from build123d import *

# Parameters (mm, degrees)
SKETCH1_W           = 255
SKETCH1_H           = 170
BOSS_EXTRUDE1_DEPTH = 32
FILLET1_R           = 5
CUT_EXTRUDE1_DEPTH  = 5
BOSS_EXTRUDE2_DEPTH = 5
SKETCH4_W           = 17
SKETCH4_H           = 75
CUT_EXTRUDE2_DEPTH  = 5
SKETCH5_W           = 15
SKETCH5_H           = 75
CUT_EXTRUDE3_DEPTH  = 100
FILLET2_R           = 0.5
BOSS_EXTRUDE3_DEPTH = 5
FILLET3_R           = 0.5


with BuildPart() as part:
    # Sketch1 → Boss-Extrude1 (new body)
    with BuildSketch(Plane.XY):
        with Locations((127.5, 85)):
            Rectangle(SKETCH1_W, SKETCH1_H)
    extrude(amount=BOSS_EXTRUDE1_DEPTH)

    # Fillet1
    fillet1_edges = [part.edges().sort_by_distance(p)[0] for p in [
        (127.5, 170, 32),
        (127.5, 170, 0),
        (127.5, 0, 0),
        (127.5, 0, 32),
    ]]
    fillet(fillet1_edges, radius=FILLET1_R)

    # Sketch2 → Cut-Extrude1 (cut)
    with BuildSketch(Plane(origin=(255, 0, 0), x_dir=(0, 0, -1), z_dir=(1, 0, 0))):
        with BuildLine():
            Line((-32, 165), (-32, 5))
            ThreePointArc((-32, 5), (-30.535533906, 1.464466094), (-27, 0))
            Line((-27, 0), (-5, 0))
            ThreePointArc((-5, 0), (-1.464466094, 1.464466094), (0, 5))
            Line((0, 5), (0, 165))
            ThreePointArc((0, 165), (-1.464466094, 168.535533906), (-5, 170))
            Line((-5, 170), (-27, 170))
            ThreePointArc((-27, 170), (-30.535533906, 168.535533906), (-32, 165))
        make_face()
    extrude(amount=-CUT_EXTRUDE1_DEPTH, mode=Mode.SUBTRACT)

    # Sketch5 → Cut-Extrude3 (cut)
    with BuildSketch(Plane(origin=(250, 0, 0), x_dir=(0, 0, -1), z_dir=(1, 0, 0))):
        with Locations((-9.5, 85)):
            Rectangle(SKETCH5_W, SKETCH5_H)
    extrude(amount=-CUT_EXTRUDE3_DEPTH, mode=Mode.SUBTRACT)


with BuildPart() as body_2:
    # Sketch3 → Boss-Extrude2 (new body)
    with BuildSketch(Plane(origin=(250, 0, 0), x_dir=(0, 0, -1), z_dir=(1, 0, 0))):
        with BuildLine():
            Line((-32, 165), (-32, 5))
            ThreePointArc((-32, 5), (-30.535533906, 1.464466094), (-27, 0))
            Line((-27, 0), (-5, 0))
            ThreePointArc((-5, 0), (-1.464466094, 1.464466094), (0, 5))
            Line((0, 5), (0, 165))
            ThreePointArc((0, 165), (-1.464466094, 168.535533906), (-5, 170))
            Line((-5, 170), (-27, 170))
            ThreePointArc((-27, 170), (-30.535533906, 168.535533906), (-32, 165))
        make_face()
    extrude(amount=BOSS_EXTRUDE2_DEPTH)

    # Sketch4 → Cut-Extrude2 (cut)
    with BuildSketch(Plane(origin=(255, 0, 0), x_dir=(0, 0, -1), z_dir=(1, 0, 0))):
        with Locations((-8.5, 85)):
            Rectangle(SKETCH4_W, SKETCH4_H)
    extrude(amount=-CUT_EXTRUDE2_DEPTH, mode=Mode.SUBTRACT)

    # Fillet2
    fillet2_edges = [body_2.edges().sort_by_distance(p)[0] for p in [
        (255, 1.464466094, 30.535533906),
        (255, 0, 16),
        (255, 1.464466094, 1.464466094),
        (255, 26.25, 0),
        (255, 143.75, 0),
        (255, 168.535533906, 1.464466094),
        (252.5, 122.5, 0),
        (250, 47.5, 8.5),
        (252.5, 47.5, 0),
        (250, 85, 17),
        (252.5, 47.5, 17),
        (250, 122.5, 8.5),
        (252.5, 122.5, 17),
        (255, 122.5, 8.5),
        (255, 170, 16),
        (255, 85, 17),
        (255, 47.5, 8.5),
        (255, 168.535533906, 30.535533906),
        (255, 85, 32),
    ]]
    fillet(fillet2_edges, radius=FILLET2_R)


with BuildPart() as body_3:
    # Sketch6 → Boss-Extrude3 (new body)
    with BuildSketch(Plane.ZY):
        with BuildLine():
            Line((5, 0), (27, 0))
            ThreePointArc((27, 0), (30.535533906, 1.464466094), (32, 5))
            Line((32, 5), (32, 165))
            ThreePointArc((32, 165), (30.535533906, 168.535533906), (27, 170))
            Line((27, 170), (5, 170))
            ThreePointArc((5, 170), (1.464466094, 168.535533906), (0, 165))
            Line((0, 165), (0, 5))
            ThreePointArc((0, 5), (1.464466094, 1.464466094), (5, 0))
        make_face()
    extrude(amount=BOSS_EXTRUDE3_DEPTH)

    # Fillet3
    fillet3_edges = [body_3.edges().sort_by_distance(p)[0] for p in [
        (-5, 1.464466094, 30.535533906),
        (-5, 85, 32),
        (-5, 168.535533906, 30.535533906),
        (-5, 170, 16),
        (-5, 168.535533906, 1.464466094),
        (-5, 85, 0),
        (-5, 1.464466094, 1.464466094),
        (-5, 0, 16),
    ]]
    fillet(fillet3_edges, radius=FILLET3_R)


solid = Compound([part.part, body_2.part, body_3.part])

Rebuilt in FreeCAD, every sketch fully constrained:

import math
import FreeCAD as App
import Part
import Sketcher
from FreeCAD import Vector
Q = App.Units.Quantity


def edges_at(feature, points):
    """Names of the edges that pass closest to the given points."""
    edges = feature.Shape.Edges
    near = lambda p: min(range(len(edges)), key=lambda i: edges[i].distToShape(Part.Vertex(*p))[0])
    return sorted({f"Edge{near(p) + 1}" for p in points})


def add_polygon(sketch, points):
    """Adds a closed chain of lines whose ends are joined by coincident constraints."""
    first, n = sketch.GeometryCount, len(points)
    for a, b in zip(points, points[1:] + points[:1]):
        sketch.addGeometry(Part.LineSegment(App.Vector(*a, 0), App.Vector(*b, 0)), False)
    for i in range(n):
        sketch.addConstraint(Sketcher.Constraint("Coincident", first + i, 2, first + (i + 1) % n, 1))

doc = App.newDocument("Part")
body = doc.addObject("PartDesign::Body", "Body")

# Sketch on XY plane
sketch1 = doc.addObject("Sketcher::SketchObject", "Sketch")
body.addObject(sketch1)
sketch1.AttachmentSupport = (doc.XY_Plane, [""])
sketch1.MapMode = "FlatFace"
add_polygon(sketch1, [(0, 170), (0, 0), (255, 0), (255, 170)])  # lines 0-3
sketch1.addConstraint([
    Sketcher.Constraint("Vertical", 0),
    Sketcher.Constraint("Horizontal", 1),
    Sketcher.Constraint("Vertical", 2),
    Sketcher.Constraint("Horizontal", 3),
    Sketcher.Constraint("Coincident", 0, 2, -1, 1),
    Sketcher.Constraint("DistanceX", 1, 1, 1, 2, Q("255 mm")),
    Sketcher.Constraint("DistanceY", 0, 2, 0, 1, Q("170 mm")),
])
pad1 = doc.addObject("PartDesign::Pad", "Pad")
body.addObject(pad1)
pad1.Profile = sketch1
pad1.Length = 32
doc.recompute()

fillet = doc.addObject("PartDesign::Fillet", "Fillet")
body.addObject(fillet)
fillet.Base = (pad1, edges_at(pad1, [
    (127.5, 170, 32),
    (127.5, 170, 0),
    (127.5, 0, 0),
    (127.5, 0, 32),
]))
fillet.Radius = 5

# Sketch on YZ plane
sketch2 = doc.addObject("Sketcher::SketchObject", "Sketch001")
body.addObject(sketch2)
sketch2.AttachmentSupport = (doc.YZ_Plane, [""])
sketch2.MapMode = "FlatFace"
sketch2.AttachmentOffset = App.Placement(Vector(0, 0, 255), App.Rotation())
sketch2.addGeometry([
    Part.LineSegment(Vector(165, 32, 0), Vector(5, 32, 0)),  # 0
    Part.ArcOfCircle(Part.Circle(Vector(5, 27, 0), Vector(0, 0, 1), 5), math.radians(90), math.radians(180)),  # 1
    Part.LineSegment(Vector(0, 27, 0), Vector(0, 5, 0)),  # 2
    Part.ArcOfCircle(Part.Circle(Vector(5, 5, 0), Vector(0, 0, 1), 5), math.radians(180), math.radians(270)),  # 3
    Part.LineSegment(Vector(5, 0, 0), Vector(165, 0, 0)),  # 4
    Part.ArcOfCircle(Part.Circle(Vector(165, 5, 0), Vector(0, 0, 1), 5), math.radians(-90), math.radians(0)),  # 5
    Part.LineSegment(Vector(170, 5, 0), Vector(170, 27, 0)),  # 6
    Part.ArcOfCircle(Part.Circle(Vector(165, 27, 0), Vector(0, 0, 1), 5), math.radians(0), math.radians(90)),  # 7
], False)
sketch2.addConstraint([
    Sketcher.Constraint("Tangent", 0, 2, 1, 1),
    Sketcher.Constraint("Tangent", 1, 2, 2, 1),
    Sketcher.Constraint("Tangent", 2, 2, 3, 1),
    Sketcher.Constraint("Tangent", 3, 2, 4, 1),
    Sketcher.Constraint("Tangent", 4, 2, 5, 1),
    Sketcher.Constraint("Tangent", 5, 2, 6, 1),
    Sketcher.Constraint("Tangent", 6, 2, 7, 1),
    Sketcher.Constraint("Tangent", 7, 2, 0, 1),
    Sketcher.Constraint("Horizontal", 0),
    Sketcher.Constraint("Vertical", 2),
    Sketcher.Constraint("Horizontal", 4),
    Sketcher.Constraint("Vertical", 6),
    Sketcher.Constraint("Equal", 1, 3),
    Sketcher.Constraint("Equal", 3, 5),
    Sketcher.Constraint("Equal", 5, 7),
    Sketcher.Constraint("PointOnObject", 1, 2, -2),
    Sketcher.Constraint("PointOnObject", 3, 2, -1),
    Sketcher.Constraint("Radius", 1, Q("5 mm")),
    Sketcher.Constraint("DistanceX", 0, 2, 0, 1, Q("160 mm")),
    Sketcher.Constraint("DistanceY", 2, 2, 2, 1, Q("22 mm")),
])
pocket1 = doc.addObject("PartDesign::Pocket", "Pocket")
body.addObject(pocket1)
pocket1.Profile = sketch2
pocket1.Length = 5

# Sketch on YZ plane
sketch3 = doc.addObject("Sketcher::SketchObject", "Sketch002")
body.addObject(sketch3)
sketch3.AttachmentSupport = (doc.YZ_Plane, [""])
sketch3.MapMode = "FlatFace"
sketch3.AttachmentOffset = App.Placement(Vector(0, 0, 250), App.Rotation())
add_polygon(sketch3, [(122, 17), (48, 17), (48, 2), (122, 2)])  # lines 0-3
sketch3.addConstraint([
    Sketcher.Constraint("Horizontal", 0),
    Sketcher.Constraint("Vertical", 1),
    Sketcher.Constraint("Horizontal", 2),
    Sketcher.Constraint("Vertical", 3),
    Sketcher.Constraint("DistanceX", 0, 2, 0, 1, Q("75 mm")),
    Sketcher.Constraint("DistanceY", 1, 2, 1, 1, Q("15 mm")),
    Sketcher.Constraint("DistanceY", -1, 1, 0, 2, Q("17 mm")),
    Sketcher.Constraint("DistanceX", -1, 1, 0, 2, Q("47.5 mm")),
])
pocket2 = doc.addObject("PartDesign::Pocket", "Pocket001")
body.addObject(pocket2)
pocket2.Profile = sketch3
pocket2.Length = 100
body2 = doc.addObject("PartDesign::Body", "Body001")

# Sketch on YZ plane
sketch4 = doc.addObject("Sketcher::SketchObject", "Sketch003")
body2.addObject(sketch4)
sketch4.AttachmentSupport = (doc.getObject("YZ_Plane001"), [""])
sketch4.MapMode = "FlatFace"
sketch4.AttachmentOffset = App.Placement(Vector(0, 0, 250), App.Rotation())
sketch4.addGeometry([
    Part.LineSegment(Vector(165, 32, 0), Vector(5, 32, 0)),  # 0
    Part.ArcOfCircle(Part.Circle(Vector(5, 27, 0), Vector(0, 0, 1), 5), math.radians(90), math.radians(180)),  # 1
    Part.LineSegment(Vector(0, 27, 0), Vector(0, 5, 0)),  # 2
    Part.ArcOfCircle(Part.Circle(Vector(5, 5, 0), Vector(0, 0, 1), 5), math.radians(180), math.radians(270)),  # 3
    Part.LineSegment(Vector(5, 0, 0), Vector(165, 0, 0)),  # 4
    Part.ArcOfCircle(Part.Circle(Vector(165, 5, 0), Vector(0, 0, 1), 5), math.radians(-90), math.radians(0)),  # 5
    Part.LineSegment(Vector(170, 5, 0), Vector(170, 27, 0)),  # 6
    Part.ArcOfCircle(Part.Circle(Vector(165, 27, 0), Vector(0, 0, 1), 5), math.radians(0), math.radians(90)),  # 7
], False)
sketch4.addConstraint([
    Sketcher.Constraint("Tangent", 0, 2, 1, 1),
    Sketcher.Constraint("Tangent", 1, 2, 2, 1),
    Sketcher.Constraint("Tangent", 2, 2, 3, 1),
    Sketcher.Constraint("Tangent", 3, 2, 4, 1),
    Sketcher.Constraint("Tangent", 4, 2, 5, 1),
    Sketcher.Constraint("Tangent", 5, 2, 6, 1),
    Sketcher.Constraint("Tangent", 6, 2, 7, 1),
    Sketcher.Constraint("Tangent", 7, 2, 0, 1),
    Sketcher.Constraint("Horizontal", 0),
    Sketcher.Constraint("Vertical", 2),
    Sketcher.Constraint("Horizontal", 4),
    Sketcher.Constraint("Vertical", 6),
    Sketcher.Constraint("Equal", 1, 3),
    Sketcher.Constraint("Equal", 3, 5),
    Sketcher.Constraint("Equal", 5, 7),
    Sketcher.Constraint("PointOnObject", 1, 2, -2),
    Sketcher.Constraint("PointOnObject", 3, 2, -1),
    Sketcher.Constraint("Radius", 1, Q("5 mm")),
    Sketcher.Constraint("DistanceX", 0, 2, 0, 1, Q("160 mm")),
    Sketcher.Constraint("DistanceY", 2, 2, 2, 1, Q("22 mm")),
])
pad2 = doc.addObject("PartDesign::Pad", "Pad001")
body2.addObject(pad2)
pad2.Profile = sketch4
pad2.Length = 5

# Sketch on YZ plane
sketch5 = doc.addObject("Sketcher::SketchObject", "Sketch004")
body2.addObject(sketch5)
sketch5.AttachmentSupport = (doc.getObject("YZ_Plane001"), [""])
sketch5.MapMode = "FlatFace"
sketch5.AttachmentOffset = App.Placement(Vector(0, 0, 255), App.Rotation())
add_polygon(sketch5, [(122, 17), (48, 17), (48, 0), (122, 0)])  # lines 0-3
sketch5.addConstraint([
    Sketcher.Constraint("Horizontal", 0),
    Sketcher.Constraint("Vertical", 1),
    Sketcher.Constraint("Horizontal", 2),
    Sketcher.Constraint("Vertical", 3),
    Sketcher.Constraint("PointOnObject", 1, 2, -1),
    Sketcher.Constraint("DistanceX", 0, 2, 0, 1, Q("75 mm")),
    Sketcher.Constraint("DistanceY", 1, 2, 1, 1, Q("17 mm")),
    Sketcher.Constraint("DistanceX", -1, 1, 0, 2, Q("47.5 mm")),
])
pocket3 = doc.addObject("PartDesign::Pocket", "Pocket002")
body2.addObject(pocket3)
pocket3.Profile = sketch5
pocket3.Length = 5
doc.recompute()

fillet2 = doc.addObject("PartDesign::Fillet", "Fillet001")
body2.addObject(fillet2)
fillet2.Base = (pocket3, edges_at(pocket3, [
    (255, 1.464, 30.536),
    (255, 0, 16),
    (255, 1.464, 1.464),
    (255, 26.25, 0),
    (255, 143.75, 0),
    (255, 168.536, 1.464),
    (252.5, 122.5, 0),
    (250, 47.5, 8.5),
    (252.5, 47.5, 0),
    (250, 85, 17),
    (252.5, 47.5, 17),
    (250, 122.5, 8.5),
    (252.5, 122.5, 17),
    (255, 122.5, 8.5),
    (255, 170, 16),
    (255, 85, 17),
    (255, 47.5, 8.5),
    (255, 168.536, 30.536),
    (255, 85, 32),
]))
fillet2.Radius = 0.5
body3 = doc.addObject("PartDesign::Body", "Body002")

# Sketch on YZ plane
sketch6 = doc.addObject("Sketcher::SketchObject", "Sketch005")
body3.addObject(sketch6)
sketch6.AttachmentSupport = (doc.getObject("YZ_Plane002"), [""])
sketch6.MapMode = "FlatFace"
sketch6.addGeometry([
    Part.LineSegment(Vector(0, 5, 0), Vector(0, 27, 0)),  # 0
    Part.ArcOfCircle(Part.Circle(Vector(5, 27, 0), Vector(0, 0, 1), 5), math.radians(90), math.radians(180)),  # 1
    Part.LineSegment(Vector(5, 32, 0), Vector(165, 32, 0)),  # 2
    Part.ArcOfCircle(Part.Circle(Vector(165, 27, 0), Vector(0, 0, 1), 5), math.radians(0), math.radians(90)),  # 3
    Part.LineSegment(Vector(170, 27, 0), Vector(170, 5, 0)),  # 4
    Part.ArcOfCircle(Part.Circle(Vector(165, 5, 0), Vector(0, 0, 1), 5), math.radians(-90), math.radians(0)),  # 5
    Part.LineSegment(Vector(165, 0, 0), Vector(5, 0, 0)),  # 6
    Part.ArcOfCircle(Part.Circle(Vector(5, 5, 0), Vector(0, 0, 1), 5), math.radians(180), math.radians(270)),  # 7
], False)
sketch6.addConstraint([
    Sketcher.Constraint("Tangent", 0, 2, 1, 2),
    Sketcher.Constraint("Tangent", 1, 1, 2, 1),
    Sketcher.Constraint("Tangent", 2, 2, 3, 2),
    Sketcher.Constraint("Tangent", 3, 1, 4, 1),
    Sketcher.Constraint("Tangent", 4, 2, 5, 2),
    Sketcher.Constraint("Tangent", 5, 1, 6, 1),
    Sketcher.Constraint("Tangent", 6, 2, 7, 2),
    Sketcher.Constraint("Tangent", 7, 1, 0, 1),
    Sketcher.Constraint("Vertical", 0),
    Sketcher.Constraint("Horizontal", 2),
    Sketcher.Constraint("Vertical", 4),
    Sketcher.Constraint("Horizontal", 6),
    Sketcher.Constraint("Equal", 1, 3),
    Sketcher.Constraint("Equal", 3, 5),
    Sketcher.Constraint("Equal", 5, 7),
    Sketcher.Constraint("PointOnObject", 0, 2, -2),
    Sketcher.Constraint("PointOnObject", 5, 1, -1),
    Sketcher.Constraint("Radius", 1, Q("5 mm")),
    Sketcher.Constraint("DistanceX", 2, 1, 2, 2, Q("160 mm")),
    Sketcher.Constraint("DistanceY", 0, 1, 0, 2, Q("22 mm")),
])
pad3 = doc.addObject("PartDesign::Pad", "Pad002")
body3.addObject(pad3)
pad3.Profile = sketch6
pad3.Length = 5
pad3.Reversed = True
doc.recompute()

fillet3 = doc.addObject("PartDesign::Fillet", "Fillet002")
body3.addObject(fillet3)
fillet3.Base = (pad3, edges_at(pad3, [
    (-5, 1.464, 30.536),
    (-5, 85, 32),
    (-5, 168.536, 30.536),
    (-5, 170, 16),
    (-5, 168.536, 1.464),
    (-5, 85, 0),
    (-5, 1.464, 1.464),
    (-5, 0, 16),
]))
fillet3.Radius = 0.5

doc.recompute()
